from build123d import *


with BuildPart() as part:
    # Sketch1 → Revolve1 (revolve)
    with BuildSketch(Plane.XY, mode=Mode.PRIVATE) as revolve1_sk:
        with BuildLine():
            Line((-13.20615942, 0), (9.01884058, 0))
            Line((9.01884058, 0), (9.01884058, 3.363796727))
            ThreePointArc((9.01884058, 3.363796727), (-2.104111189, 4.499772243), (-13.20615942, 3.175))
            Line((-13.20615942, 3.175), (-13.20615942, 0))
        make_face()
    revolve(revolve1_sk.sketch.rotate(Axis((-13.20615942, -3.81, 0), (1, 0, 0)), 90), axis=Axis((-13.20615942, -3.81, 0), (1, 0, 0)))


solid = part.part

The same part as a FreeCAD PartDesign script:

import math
import FreeCAD as App
import Part
import Sketcher

V = App.Vector
Q = App.Units.Quantity

doc = App.newDocument("Part")
body = doc.addObject("PartDesign::Body", "Body")

# Sketch on XY plane
sketch1 = doc.addObject("Sketcher::SketchObject", "Sketch")
body.addObject(sketch1)
sketch1.AttachmentSupport = (doc.XY_Plane, [""])
sketch1.MapMode = "FlatFace"
sketch1.addGeometry(Part.LineSegment(V(-13.206159, 0, 0), V(9.018841, 0, 0)), False)
sketch1.addGeometry(Part.LineSegment(V(9.018841, 0, 0), V(9.018841, 3.363797, 0)), False)
sketch1.addGeometry(Part.ArcOfCircle(Part.Circle(V(-1.672591, -46.298395, 0), V(0, 0, 1), 50.8), math.radians(77.850615), math.radians(103.122792)), False)
sketch1.addGeometry(Part.LineSegment(V(-13.206159, 3.175, 0), V(-13.206159, 0, 0)), False)
sketch1.addGeometry(Part.LineSegment(V(-13.206159, -3.81, 0), V(9.018841, -3.81, 0)), True)  # axis
sketch1.addConstraint(Sketcher.Constraint("Coincident", 0, 2, 1, 1))
sketch1.addConstraint(Sketcher.Constraint("Coincident", 1, 2, 2, 1))
sketch1.addConstraint(Sketcher.Constraint("Coincident", 2, 2, 3, 1))
sketch1.addConstraint(Sketcher.Constraint("Coincident", 3, 2, 0, 1))
sketch1.addConstraint(Sketcher.Constraint("Horizontal", 0))
sketch1.addConstraint(Sketcher.Constraint("Vertical", 1))
sketch1.addConstraint(Sketcher.Constraint("Vertical", 3))
sketch1.addConstraint(Sketcher.Constraint("Horizontal", 4))
sketch1.addConstraint(Sketcher.Constraint("PointOnObject", 0, 2, -1))
sketch1.addConstraint(Sketcher.Constraint("Vertical", 3, 2, 4, 1))
sketch1.addConstraint(Sketcher.Constraint("Vertical", 1, 2, 4, 2))
sketch1.addConstraint(Sketcher.Constraint("Radius", 2, Q("2 in")))
sketch1.addConstraint(Sketcher.Constraint("DistanceX", 0, 1, 0, 2, Q("0.875 in")))
sketch1.addConstraint(Sketcher.Constraint("DistanceY", 3, 2, 3, 1, Q("0.125 in")))
sketch1.addConstraint(Sketcher.Constraint("DistanceY", 4, 1, -1, 1, Q("0.15 in")))
sketch1.addConstraint(Sketcher.Constraint("DistanceY", 1, 1, 1, 2, Q("3.363797 mm")))
sketch1.addConstraint(Sketcher.Constraint("DistanceX", 2, 3, -1, 1, Q("1.672591 mm")))
revolution = doc.addObject("PartDesign::Revolution", "Revolution")
body.addObject(revolution)
revolution.Profile = sketch1
revolution.ReferenceAxis = (sketch1, ["Axis0"])
revolution.Angle = 360

doc.recompute()
